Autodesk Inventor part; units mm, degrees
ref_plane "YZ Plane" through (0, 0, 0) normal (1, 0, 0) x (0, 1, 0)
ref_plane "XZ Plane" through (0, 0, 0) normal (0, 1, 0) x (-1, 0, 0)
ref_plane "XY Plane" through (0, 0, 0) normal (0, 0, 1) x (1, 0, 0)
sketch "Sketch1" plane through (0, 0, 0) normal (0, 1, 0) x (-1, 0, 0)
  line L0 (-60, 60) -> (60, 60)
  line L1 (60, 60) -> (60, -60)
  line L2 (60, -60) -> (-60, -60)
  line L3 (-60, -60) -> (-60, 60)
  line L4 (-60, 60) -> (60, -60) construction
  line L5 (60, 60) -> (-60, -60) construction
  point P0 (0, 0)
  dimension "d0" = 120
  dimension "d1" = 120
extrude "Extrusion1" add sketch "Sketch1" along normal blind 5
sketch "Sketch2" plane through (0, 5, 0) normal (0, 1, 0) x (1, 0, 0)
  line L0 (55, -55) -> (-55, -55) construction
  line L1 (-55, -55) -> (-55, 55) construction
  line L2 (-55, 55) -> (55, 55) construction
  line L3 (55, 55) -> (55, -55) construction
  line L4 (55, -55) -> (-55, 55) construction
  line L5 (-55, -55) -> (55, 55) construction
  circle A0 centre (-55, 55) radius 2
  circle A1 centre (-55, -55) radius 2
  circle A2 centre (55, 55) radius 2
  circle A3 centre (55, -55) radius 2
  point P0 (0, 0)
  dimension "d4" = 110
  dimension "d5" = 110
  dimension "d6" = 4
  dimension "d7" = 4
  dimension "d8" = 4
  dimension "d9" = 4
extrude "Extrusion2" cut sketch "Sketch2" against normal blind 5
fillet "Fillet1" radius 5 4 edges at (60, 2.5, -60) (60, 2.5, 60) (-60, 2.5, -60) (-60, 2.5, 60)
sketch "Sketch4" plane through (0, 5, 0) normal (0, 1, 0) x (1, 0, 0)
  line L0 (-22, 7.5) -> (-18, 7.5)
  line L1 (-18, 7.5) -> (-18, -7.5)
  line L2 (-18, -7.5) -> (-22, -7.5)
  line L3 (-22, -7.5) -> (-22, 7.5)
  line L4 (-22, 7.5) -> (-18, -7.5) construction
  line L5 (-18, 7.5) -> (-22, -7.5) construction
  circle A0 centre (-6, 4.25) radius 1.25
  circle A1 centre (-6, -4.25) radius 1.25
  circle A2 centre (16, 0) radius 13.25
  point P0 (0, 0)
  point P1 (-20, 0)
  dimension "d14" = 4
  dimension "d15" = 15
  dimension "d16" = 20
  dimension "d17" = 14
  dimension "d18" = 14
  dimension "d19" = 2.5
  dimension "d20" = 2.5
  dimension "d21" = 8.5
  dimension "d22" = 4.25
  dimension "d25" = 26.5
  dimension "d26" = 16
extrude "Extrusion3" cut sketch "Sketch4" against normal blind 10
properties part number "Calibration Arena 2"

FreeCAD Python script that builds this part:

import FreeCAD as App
import Part
import Sketcher
Q = App.Units.Quantity


def edges_at(feature, points):
    """Names of the edges that pass closest to the given points."""
    edges = feature.Shape.Edges
    near = lambda p: min(range(len(edges)), key=lambda i: edges[i].distToShape(Part.Vertex(*p))[0])
    return sorted({f"Edge{near(p) + 1}" for p in points})


def add_polygon(sketch, points):
    """Adds a closed chain of lines whose ends are joined by coincident constraints."""
    first, n = sketch.GeometryCount, len(points)
    for a, b in zip(points, points[1:] + points[:1]):
        sketch.addGeometry(Part.LineSegment(App.Vector(*a, 0), App.Vector(*b, 0)), False)
    for i in range(n):
        sketch.addConstraint(Sketcher.Constraint("Coincident", first + i, 2, first + (i + 1) % n, 1))

doc = App.newDocument("Part")
params = doc.addObject("Spreadsheet::Sheet", "Params")
for row, (alias, value) in enumerate([
    ("sketch1_width", "120 mm"),
    ("pad1_length", "5 mm"),
    ("sketch2_diameter", "4 mm"),
    ("pocket1_length", "5 mm"),
    ("fillet_radius", "5 mm"),
    ("sketch3_diameter", "2.5 mm"),
    ("sketch3_diameter2", "26.5 mm"),
    ("sketch3_width", "4 mm"),
    ("sketch3_height", "15 mm"),
    ("pocket2_length", "10 mm"),
], start=1):
    params.set(f"A{row}", alias)
    params.set(f"B{row}", "=" + value)
    params.setAlias(f"B{row}", alias)

body = doc.addObject("PartDesign::Body", "Body")

# Sketch on XZ plane
sketch1 = body.newObject("Sketcher::SketchObject", "Sketch")
sketch1.AttachmentSupport = (doc.getObject("XZ_Plane"), [""])
sketch1.MapMode = "FlatFace"
add_polygon(sketch1, [(-60, 60), (60, 60), (60, -60), (-60, -60)])  # lines 0-3
sketch1.addConstraint(Sketcher.Constraint("Horizontal", 0))
sketch1.addConstraint(Sketcher.Constraint("Vertical", 1))
sketch1.addConstraint(Sketcher.Constraint("Horizontal", 2))
sketch1.addConstraint(Sketcher.Constraint("Vertical", 3))
sketch1.addConstraint(Sketcher.Constraint("Symmetric", 0, 2, 2, 2, -1, 1))
sketch1.addConstraint(Sketcher.Constraint("Equal", 2, 1))
sketch1.addConstraint(Sketcher.Constraint("DistanceX", 0, 1, 0, 2, Q("120 mm")))
sketch1.setExpression("Constraints[10]", "Params.sketch1_width")
pad1 = body.newObject("PartDesign::Pad", "Pad")
pad1.Profile = sketch1
pad1.setExpression("Length", "Params.pad1_length")
pad1.Reversed = True

# Sketch on XZ plane
sketch2 = body.newObject("Sketcher::SketchObject", "Sketch001")
sketch2.AttachmentSupport = (doc.getObject("XZ_Plane"), [""])
sketch2.MapMode = "FlatFace"
sketch2.AttachmentOffset = App.Placement(App.Vector(0, 0, -5), App.Rotation())
sketch2.addGeometry(Part.Circle(App.Vector(-55, -55, 0), App.Vector(0, 0, 1), 2), False)
sketch2.addGeometry(Part.Circle(App.Vector(-55, 55, 0), App.Vector(0, 0, 1), 2), False)
sketch2.addGeometry(Part.Circle(App.Vector(55, -55, 0), App.Vector(0, 0, 1), 2), False)
sketch2.addGeometry(Part.Circle(App.Vector(55, 55, 0), App.Vector(0, 0, 1), 2), False)
sketch2.addConstraint(Sketcher.Constraint("Equal", 0, 1))
sketch2.addConstraint(Sketcher.Constraint("Equal", 1, 2))
sketch2.addConstraint(Sketcher.Constraint("Equal", 2, 3))
sketch2.addConstraint(Sketcher.Constraint("Symmetric", 1, 3, 2, 3, -1, 1))
sketch2.addConstraint(Sketcher.Constraint("Symmetric", 0, 3, 3, 3, -1, 1))
sketch2.addConstraint(Sketcher.Constraint("Symmetric", 0, 3, 2, 3, -2))
sketch2.addConstraint(Sketcher.Constraint("Diameter", 0, Q("4 mm")))
sketch2.addConstraint(Sketcher.Constraint("DistanceY", 0, 3, 1, 3, Q("110 mm")))
sketch2.addConstraint(Sketcher.Constraint("DistanceX", 0, 3, 2, 3, Q("110 mm")))
sketch2.setExpression("Constraints[6]", "Params.sketch2_diameter")
pocket1 = body.newObject("PartDesign::Pocket", "Pocket")
pocket1.Profile = sketch2
pocket1.setExpression("Length", "Params.pocket1_length")
pocket1.Reversed = True
doc.recompute()

fillet = body.newObject("PartDesign::Fillet", "Fillet")
fillet.Base = (pocket1, edges_at(pocket1, [
    (60, 2.5, -60),
    (60, 2.5, 60),
    (-60, 2.5, -60),
    (-60, 2.5, 60),
]))
fillet.setExpression("Radius", "Params.fillet_radius")

# Sketch on XZ plane
sketch3 = body.newObject("Sketcher::SketchObject", "Sketch002")
sketch3.AttachmentSupport = (doc.getObject("XZ_Plane"), [""])
sketch3.MapMode = "FlatFace"
sketch3.AttachmentOffset = App.Placement(App.Vector(0, 0, -5), App.Rotation())
add_polygon(sketch3, [(-18, -7.5), (-22, -7.5), (-22, 7.5), (-18, 7.5)])  # lines 0-3
sketch3.addGeometry(Part.Circle(App.Vector(-6, -4.2, 0), App.Vector(0, 0, 1), 1.2), False)  # 4
sketch3.addGeometry(Part.Circle(App.Vector(-6, 4.2, 0), App.Vector(0, 0, 1), 1.2), False)  # 5
sketch3.addGeometry(Part.Circle(App.Vector(16, 0, 0), App.Vector(0, 0, 1), 13.2), False)  # 6
sketch3.addConstraint(Sketcher.Constraint("Horizontal", 0))
sketch3.addConstraint(Sketcher.Constraint("Vertical", 1))
sketch3.addConstraint(Sketcher.Constraint("Horizontal", 2))
sketch3.addConstraint(Sketcher.Constraint("Vertical", 3))
sketch3.addConstraint(Sketcher.Constraint("Equal", 4, 5))
sketch3.addConstraint(Sketcher.Constraint("Symmetric", 4, 3, 5, 3, -1))
sketch3.addConstraint(Sketcher.Constraint("PointOnObject", 6, 3, -1))
sketch3.addConstraint(Sketcher.Constraint("Diameter", 4, Q("2.5 mm")))
sketch3.addConstraint(Sketcher.Constraint("Diameter", 6, Q("26.5 mm")))
sketch3.addConstraint(Sketcher.Constraint("DistanceX", 0, 2, 0, 1, Q("4 mm")))
sketch3.addConstraint(Sketcher.Constraint("DistanceY", 1, 1, 1, 2, Q("15 mm")))
sketch3.addConstraint(Sketcher.Constraint("DistanceX", -1, 1, 6, 3, Q("16 mm")))
sketch3.addConstraint(Sketcher.Constraint("DistanceX", 0, 2, 4, 3, Q("16 mm")))
sketch3.addConstraint(Sketcher.Constraint("DistanceY", 4, 3, 5, 3, Q("8.5 mm")))
sketch3.addConstraint(Sketcher.Constraint("DistanceX", 4, 3, -1, 1, Q("6 mm")))
sketch3.addConstraint(Sketcher.Constraint("DistanceY", 0, 2, -1, 1, Q("7.5 mm")))
sketch3.setExpression("Constraints[11]", "Params.sketch3_diameter")
sketch3.setExpression("Constraints[12]", "Params.sketch3_diameter2")
sketch3.setExpression("Constraints[13]", "Params.sketch3_width")
sketch3.setExpression("Constraints[14]", "Params.sketch3_height")
pocket2 = body.newObject("PartDesign::Pocket", "Pocket001")
pocket2.Profile = sketch3
pocket2.setExpression("Length", "Params.pocket2_length")
pocket2.Reversed = True

doc.recompute()
